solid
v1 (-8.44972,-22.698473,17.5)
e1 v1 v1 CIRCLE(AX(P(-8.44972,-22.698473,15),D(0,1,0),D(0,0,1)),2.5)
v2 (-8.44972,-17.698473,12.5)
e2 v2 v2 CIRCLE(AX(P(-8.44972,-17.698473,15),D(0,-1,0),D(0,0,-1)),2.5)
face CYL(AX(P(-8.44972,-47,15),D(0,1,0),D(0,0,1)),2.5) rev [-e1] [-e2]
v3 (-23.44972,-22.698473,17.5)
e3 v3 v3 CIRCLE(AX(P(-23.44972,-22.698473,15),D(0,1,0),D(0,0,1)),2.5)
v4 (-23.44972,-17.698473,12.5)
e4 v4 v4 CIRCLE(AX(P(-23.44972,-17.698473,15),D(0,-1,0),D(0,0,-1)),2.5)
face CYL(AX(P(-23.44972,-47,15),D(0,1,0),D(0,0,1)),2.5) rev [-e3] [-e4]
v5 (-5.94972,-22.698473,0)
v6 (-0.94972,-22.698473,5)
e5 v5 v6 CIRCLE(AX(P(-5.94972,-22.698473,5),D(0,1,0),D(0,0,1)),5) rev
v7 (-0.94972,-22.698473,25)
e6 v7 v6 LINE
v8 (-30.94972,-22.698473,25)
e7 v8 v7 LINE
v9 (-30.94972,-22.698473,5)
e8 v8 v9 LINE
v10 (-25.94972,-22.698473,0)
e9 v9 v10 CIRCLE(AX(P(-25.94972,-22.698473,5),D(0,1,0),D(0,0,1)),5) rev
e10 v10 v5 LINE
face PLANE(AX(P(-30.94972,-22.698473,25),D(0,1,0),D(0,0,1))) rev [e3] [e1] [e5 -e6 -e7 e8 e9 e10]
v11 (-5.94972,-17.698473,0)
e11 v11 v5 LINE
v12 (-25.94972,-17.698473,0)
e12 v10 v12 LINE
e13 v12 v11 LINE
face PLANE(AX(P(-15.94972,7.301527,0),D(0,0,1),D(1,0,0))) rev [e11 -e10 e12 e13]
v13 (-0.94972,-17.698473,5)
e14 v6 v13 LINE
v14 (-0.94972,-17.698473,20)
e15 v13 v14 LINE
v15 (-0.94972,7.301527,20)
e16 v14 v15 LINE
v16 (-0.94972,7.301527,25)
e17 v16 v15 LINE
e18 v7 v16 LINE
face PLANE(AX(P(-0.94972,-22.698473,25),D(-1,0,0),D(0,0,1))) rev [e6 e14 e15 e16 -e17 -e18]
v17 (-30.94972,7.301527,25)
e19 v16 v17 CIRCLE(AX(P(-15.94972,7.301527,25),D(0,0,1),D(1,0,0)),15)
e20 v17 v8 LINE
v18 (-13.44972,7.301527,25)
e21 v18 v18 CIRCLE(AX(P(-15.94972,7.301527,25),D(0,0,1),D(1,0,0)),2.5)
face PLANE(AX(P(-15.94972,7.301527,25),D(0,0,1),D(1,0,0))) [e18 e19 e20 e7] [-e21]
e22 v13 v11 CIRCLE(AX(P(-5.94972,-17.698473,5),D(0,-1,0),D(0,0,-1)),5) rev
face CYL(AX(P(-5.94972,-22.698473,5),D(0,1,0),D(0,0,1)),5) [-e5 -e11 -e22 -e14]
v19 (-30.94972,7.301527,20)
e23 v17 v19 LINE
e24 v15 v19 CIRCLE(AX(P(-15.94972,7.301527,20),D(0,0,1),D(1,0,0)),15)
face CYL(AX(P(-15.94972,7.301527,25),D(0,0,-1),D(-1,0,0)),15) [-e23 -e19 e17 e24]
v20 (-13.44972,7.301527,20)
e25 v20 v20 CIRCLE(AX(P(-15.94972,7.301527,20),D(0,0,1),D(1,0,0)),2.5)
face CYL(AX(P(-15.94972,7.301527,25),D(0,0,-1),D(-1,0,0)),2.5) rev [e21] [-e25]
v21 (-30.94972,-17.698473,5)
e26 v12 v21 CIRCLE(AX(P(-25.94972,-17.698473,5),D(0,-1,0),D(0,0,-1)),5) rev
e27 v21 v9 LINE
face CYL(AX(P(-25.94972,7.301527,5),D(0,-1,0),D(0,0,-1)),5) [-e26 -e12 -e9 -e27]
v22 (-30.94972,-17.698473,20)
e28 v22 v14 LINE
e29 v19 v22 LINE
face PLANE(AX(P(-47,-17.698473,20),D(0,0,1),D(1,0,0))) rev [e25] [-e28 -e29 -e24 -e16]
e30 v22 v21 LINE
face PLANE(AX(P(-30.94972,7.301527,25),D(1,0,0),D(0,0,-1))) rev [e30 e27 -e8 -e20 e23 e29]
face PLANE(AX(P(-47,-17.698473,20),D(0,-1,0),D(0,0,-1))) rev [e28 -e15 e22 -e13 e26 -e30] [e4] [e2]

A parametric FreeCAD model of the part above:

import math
import FreeCAD as App
import Part
import Sketcher
from FreeCAD import Vector


def edges_at(feature, points):
    """Names of the edges that pass closest to the given points."""
    edges = feature.Shape.Edges
    near = lambda p: min(range(len(edges)), key=lambda i: edges[i].distToShape(Part.Vertex(*p))[0])
    return sorted({f"Edge{near(p) + 1}" for p in points})

doc = App.newDocument("Part")
body = doc.addObject("PartDesign::Body", "Body")

# Sketch on XY plane
sketch1 = doc.addObject("Sketcher::SketchObject", "Sketch")
body.addObject(sketch1)
sketch1.AttachmentSupport = (doc.XY_Plane, [""])
sketch1.MapMode = "FlatFace"
sketch1.addGeometry(Part.LineSegment(Vector(-30.94972, 7.301527, 0), Vector(-30.94972, -22.698473, 0)), False)
sketch1.addGeometry(Part.LineSegment(Vector(-30.94972, -22.698473, 0), Vector(-0.94972, -22.698473, 0)), False)
sketch1.addGeometry(Part.LineSegment(Vector(-0.94972, -22.698473, 0), Vector(-0.94972, 7.301527, 0)), False)
sketch1.addGeometry(Part.ArcOfCircle(Part.Circle(Vector(-15.94972, 7.301527, 0), Vector(0, 0, 1), 15), math.radians(0), math.radians(180)), False)
sketch1.addGeometry(Part.Circle(Vector(-15.94972, 7.301527, 0), Vector(0, 0, 1), 2.5), False)
sketch1.addConstraint(Sketcher.Constraint("Coincident", 0, 2, 1, 1))
sketch1.addConstraint(Sketcher.Constraint("Coincident", 1, 2, 2, 1))
sketch1.addConstraint(Sketcher.Constraint("Tangent", 2, 2, 3, 1))
sketch1.addConstraint(Sketcher.Constraint("Tangent", 3, 2, 0, 1))
sketch1.addConstraint(Sketcher.Constraint("Vertical", 0))
sketch1.addConstraint(Sketcher.Constraint("Horizontal", 1))
sketch1.addConstraint(Sketcher.Constraint("Vertical", 2))
sketch1.addConstraint(Sketcher.Constraint("Coincident", 4, 3, 3, 3))
sketch1.addConstraint(Sketcher.Constraint("Equal", 1, 0))
sketch1.addConstraint(Sketcher.Constraint("Diameter", 4, 5.0))
sketch1.addConstraint(Sketcher.Constraint("Radius", 3, 15.0))
sketch1.addConstraint(Sketcher.Constraint("DistanceX", 3, 3, -1, 1, 15.94972))
sketch1.addConstraint(Sketcher.Constraint("DistanceY", -1, 1, 3, 3, 7.301527))
pad1 = doc.addObject("PartDesign::Pad", "Pad")
body.addObject(pad1)
pad1.Profile = sketch1
pad1.Length = 25

# Sketch on YZ plane
sketch2 = doc.addObject("Sketcher::SketchObject", "Sketch001")
body.addObject(sketch2)
sketch2.AttachmentSupport = (doc.YZ_Plane, [""])
sketch2.MapMode = "FlatFace"
sketch2.addGeometry(Part.LineSegment(Vector(22.301527, 20, 0), Vector(-17.698473, 20, 0)), False)
sketch2.addGeometry(Part.LineSegment(Vector(-17.698473, 20, 0), Vector(-17.698473, 0, 0)), False)
sketch2.addGeometry(Part.LineSegment(Vector(-17.698473, 0, 0), Vector(22.301527, 0, 0)), False)
sketch2.addGeometry(Part.LineSegment(Vector(22.301527, 0, 0), Vector(22.301527, 20, 0)), False)
sketch2.addConstraint(Sketcher.Constraint("Coincident", 0, 2, 1, 1))
sketch2.addConstraint(Sketcher.Constraint("Coincident", 1, 2, 2, 1))
sketch2.addConstraint(Sketcher.Constraint("Coincident", 2, 2, 3, 1))
sketch2.addConstraint(Sketcher.Constraint("Coincident", 3, 2, 0, 1))
sketch2.addConstraint(Sketcher.Constraint("Horizontal", 0))
sketch2.addConstraint(Sketcher.Constraint("Vertical", 1))
sketch2.addConstraint(Sketcher.Constraint("Horizontal", 2))
sketch2.addConstraint(Sketcher.Constraint("Vertical", 3))
sketch2.addConstraint(Sketcher.Constraint("PointOnObject", 1, 2, -1))
sketch2.addConstraint(Sketcher.Constraint("DistanceX", 0, 2, 0, 1, 40.0))
sketch2.addConstraint(Sketcher.Constraint("DistanceY", 1, 2, 1, 1, 20.0))
sketch2.addConstraint(Sketcher.Constraint("DistanceX", 0, 2, -1, 1, 17.698473))
pocket1 = doc.addObject("PartDesign::Pocket", "Pocket")
body.addObject(pocket1)
pocket1.Profile = sketch2
pocket1.Length = 47
doc.recompute()

fillet = doc.addObject("PartDesign::Fillet", "Fillet")
body.addObject(fillet)
fillet.Base = (pocket1, edges_at(pocket1, [(-30.95, -20.198, 0), (-0.95, -20.198, 0)]))
fillet.Radius = 5

# Sketch on XZ plane
sketch3 = doc.addObject("Sketcher::SketchObject", "Sketch002")
body.addObject(sketch3)
sketch3.AttachmentSupport = (doc.XZ_Plane, [""])
sketch3.MapMode = "FlatFace"
sketch3.addGeometry(Part.Circle(Vector(-23.44972, 15, 0), Vector(0, 0, 1), 2.5), False)
sketch3.addGeometry(Part.Circle(Vector(-8.44972, 15, 0), Vector(0, 0, 1), 2.5), False)
sketch3.addConstraint(Sketcher.Constraint("Equal", 0, 1))
sketch3.addConstraint(Sketcher.Constraint("Horizontal", 0, 3, 1, 3))
sketch3.addConstraint(Sketcher.Constraint("Diameter", 0, 5.0))
sketch3.addConstraint(Sketcher.Constraint("DistanceY", -1, 1, 0, 3, 15.0))
sketch3.addConstraint(Sketcher.Constraint("DistanceX", 0, 3, 1, 3, 15.0))
sketch3.addConstraint(Sketcher.Constraint("DistanceX", 0, 3, -1, 1, 23.44972))
pocket2 = doc.addObject("PartDesign::Pocket", "Pocket001")
body.addObject(pocket2)
pocket2.Profile = sketch3
pocket2.Length = 47
pocket2.Reversed = True

doc.recompute()
